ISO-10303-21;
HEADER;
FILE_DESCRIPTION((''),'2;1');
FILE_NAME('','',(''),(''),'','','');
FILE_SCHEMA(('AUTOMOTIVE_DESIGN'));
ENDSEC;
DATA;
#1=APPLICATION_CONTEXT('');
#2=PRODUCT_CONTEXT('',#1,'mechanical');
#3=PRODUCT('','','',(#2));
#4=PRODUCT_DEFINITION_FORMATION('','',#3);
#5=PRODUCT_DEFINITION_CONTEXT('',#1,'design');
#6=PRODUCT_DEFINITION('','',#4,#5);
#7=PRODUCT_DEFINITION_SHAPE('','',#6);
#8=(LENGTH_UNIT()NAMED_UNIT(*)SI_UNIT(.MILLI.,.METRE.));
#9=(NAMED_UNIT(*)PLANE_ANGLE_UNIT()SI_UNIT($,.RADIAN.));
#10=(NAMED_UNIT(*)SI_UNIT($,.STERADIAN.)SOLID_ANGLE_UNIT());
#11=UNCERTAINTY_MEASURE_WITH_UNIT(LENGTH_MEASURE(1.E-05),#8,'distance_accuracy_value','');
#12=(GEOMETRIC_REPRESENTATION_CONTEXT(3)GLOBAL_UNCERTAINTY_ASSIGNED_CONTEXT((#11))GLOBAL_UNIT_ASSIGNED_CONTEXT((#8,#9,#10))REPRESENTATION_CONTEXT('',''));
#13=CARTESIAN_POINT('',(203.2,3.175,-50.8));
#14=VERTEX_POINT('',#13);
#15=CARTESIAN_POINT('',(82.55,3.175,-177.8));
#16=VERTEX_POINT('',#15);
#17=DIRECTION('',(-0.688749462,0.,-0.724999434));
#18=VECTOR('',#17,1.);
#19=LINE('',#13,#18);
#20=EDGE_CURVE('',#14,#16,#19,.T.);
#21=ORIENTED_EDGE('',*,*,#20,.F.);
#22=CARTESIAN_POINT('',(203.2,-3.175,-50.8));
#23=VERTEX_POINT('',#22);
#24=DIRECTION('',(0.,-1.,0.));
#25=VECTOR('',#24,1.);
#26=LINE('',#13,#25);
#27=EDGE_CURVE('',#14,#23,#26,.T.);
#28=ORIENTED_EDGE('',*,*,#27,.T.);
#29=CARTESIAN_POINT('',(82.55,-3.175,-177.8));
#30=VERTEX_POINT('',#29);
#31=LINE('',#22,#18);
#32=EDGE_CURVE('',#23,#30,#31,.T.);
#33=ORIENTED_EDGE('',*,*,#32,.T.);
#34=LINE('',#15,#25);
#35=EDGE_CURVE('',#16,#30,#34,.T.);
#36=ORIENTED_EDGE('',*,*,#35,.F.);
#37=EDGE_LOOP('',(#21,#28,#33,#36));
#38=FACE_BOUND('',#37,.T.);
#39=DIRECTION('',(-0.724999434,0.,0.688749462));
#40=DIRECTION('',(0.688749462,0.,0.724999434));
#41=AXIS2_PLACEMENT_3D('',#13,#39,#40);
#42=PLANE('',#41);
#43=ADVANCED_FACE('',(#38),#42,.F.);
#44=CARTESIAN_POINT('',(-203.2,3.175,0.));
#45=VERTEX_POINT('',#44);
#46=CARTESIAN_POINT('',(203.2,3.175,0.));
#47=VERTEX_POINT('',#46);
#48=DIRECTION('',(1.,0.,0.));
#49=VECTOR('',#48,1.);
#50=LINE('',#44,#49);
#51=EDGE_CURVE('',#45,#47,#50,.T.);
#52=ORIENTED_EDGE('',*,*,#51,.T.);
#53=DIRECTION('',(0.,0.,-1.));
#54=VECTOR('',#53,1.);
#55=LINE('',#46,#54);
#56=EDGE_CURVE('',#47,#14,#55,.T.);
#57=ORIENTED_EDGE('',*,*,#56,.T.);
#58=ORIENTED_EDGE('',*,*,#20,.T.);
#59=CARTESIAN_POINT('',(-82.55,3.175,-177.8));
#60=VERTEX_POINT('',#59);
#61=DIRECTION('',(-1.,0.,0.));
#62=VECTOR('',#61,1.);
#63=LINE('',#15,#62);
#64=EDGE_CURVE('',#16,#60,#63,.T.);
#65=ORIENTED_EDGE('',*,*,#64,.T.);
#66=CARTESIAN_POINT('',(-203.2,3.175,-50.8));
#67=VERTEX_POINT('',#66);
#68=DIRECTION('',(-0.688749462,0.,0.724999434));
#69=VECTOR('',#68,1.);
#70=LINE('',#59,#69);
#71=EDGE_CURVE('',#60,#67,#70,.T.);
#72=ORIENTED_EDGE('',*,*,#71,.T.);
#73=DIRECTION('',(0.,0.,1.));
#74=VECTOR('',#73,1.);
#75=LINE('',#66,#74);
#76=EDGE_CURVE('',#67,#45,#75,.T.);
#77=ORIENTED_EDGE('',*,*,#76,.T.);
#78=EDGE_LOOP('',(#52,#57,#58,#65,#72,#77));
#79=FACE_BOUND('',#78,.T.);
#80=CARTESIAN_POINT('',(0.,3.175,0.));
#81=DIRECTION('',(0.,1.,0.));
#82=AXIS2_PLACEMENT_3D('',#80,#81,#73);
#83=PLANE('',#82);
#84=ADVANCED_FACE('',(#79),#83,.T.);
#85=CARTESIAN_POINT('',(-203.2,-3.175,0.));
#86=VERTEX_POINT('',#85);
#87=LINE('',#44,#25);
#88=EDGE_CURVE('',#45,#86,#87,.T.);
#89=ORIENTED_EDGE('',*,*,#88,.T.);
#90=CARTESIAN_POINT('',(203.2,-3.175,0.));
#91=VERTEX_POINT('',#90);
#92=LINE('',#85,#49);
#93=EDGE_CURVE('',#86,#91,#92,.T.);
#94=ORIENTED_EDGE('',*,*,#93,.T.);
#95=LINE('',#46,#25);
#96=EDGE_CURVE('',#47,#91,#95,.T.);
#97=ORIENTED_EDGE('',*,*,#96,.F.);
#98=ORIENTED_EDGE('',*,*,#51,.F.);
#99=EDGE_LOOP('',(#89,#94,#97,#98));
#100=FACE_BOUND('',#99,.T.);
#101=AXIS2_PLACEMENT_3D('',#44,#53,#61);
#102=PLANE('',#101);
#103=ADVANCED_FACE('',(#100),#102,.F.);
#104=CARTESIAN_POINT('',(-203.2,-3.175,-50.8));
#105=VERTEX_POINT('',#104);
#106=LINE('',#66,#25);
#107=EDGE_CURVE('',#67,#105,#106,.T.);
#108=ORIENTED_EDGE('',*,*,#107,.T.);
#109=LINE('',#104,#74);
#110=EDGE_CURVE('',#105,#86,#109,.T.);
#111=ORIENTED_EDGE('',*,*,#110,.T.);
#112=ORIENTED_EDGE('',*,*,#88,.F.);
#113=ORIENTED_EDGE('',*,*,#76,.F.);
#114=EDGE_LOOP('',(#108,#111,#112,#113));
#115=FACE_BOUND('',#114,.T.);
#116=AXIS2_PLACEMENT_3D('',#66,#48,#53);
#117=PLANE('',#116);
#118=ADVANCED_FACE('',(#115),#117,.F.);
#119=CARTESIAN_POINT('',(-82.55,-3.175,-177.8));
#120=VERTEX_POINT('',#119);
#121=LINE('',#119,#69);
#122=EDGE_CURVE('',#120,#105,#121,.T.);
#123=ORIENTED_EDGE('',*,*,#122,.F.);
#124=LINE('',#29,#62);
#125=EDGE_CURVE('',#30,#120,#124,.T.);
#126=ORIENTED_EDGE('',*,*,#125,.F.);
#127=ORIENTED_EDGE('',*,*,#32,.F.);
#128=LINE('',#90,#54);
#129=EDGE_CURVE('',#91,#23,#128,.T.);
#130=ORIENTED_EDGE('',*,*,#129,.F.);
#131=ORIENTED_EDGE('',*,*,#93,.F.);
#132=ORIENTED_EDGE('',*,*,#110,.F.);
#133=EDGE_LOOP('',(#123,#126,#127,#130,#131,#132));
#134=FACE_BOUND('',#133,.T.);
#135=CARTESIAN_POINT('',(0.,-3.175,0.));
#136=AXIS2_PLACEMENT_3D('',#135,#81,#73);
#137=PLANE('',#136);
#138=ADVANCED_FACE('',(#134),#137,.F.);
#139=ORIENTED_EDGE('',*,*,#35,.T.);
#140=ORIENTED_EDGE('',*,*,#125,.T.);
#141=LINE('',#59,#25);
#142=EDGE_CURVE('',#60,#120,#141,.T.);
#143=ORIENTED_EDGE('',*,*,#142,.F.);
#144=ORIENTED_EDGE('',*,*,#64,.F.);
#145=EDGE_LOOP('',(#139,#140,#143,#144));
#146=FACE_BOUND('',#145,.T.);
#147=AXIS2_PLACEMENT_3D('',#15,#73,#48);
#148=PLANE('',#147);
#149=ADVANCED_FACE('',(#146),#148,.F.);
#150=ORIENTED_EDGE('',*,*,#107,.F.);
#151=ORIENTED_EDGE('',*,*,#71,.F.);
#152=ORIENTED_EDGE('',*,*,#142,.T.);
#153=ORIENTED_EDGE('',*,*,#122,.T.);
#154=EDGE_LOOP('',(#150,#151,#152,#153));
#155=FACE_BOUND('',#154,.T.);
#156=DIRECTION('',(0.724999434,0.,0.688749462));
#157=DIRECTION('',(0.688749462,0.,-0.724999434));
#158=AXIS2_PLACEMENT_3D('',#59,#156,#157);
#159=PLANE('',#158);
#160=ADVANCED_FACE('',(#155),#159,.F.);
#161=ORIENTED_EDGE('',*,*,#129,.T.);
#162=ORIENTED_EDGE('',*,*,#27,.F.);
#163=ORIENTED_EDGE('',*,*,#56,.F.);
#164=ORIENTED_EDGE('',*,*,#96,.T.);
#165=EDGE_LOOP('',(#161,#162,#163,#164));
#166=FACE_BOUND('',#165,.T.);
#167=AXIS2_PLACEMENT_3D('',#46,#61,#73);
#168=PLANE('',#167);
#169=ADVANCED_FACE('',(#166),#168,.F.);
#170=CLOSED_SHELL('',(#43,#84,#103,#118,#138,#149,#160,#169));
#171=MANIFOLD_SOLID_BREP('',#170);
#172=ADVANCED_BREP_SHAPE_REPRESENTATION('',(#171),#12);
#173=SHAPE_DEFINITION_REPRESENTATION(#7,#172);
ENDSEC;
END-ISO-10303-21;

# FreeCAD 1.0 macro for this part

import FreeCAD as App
import Part
import Sketcher
from FreeCAD import Vector
Q = App.Units.Quantity

doc = App.newDocument("Part")
body = doc.addObject("PartDesign::Body", "Body")

# Sketch on XZ plane
sketch1 = body.newObject("Sketcher::SketchObject", "Sketch")
sketch1.AttachmentSupport = (doc.getObject("XZ_Plane"), [""])
sketch1.MapMode = "FlatFace"
sketch1.addGeometry([
    Part.LineSegment(Vector(-203, 0, 0), Vector(203, 0, 0)),  # 0
    Part.LineSegment(Vector(203, 0, 0), Vector(203, -51, 0)),  # 1
    Part.LineSegment(Vector(203, -51, 0), Vector(83, -178, 0)),  # 2
    Part.LineSegment(Vector(83, -178, 0), Vector(-83, -178, 0)),  # 3
    Part.LineSegment(Vector(-83, -178, 0), Vector(-203, -51, 0)),  # 4
    Part.LineSegment(Vector(-203, -51, 0), Vector(-203, 0, 0)),  # 5
], False)
sketch1.addConstraint([
    Sketcher.Constraint("Coincident", 0, 2, 1, 1),
    Sketcher.Constraint("Coincident", 1, 2, 2, 1),
    Sketcher.Constraint("Coincident", 2, 2, 3, 1),
    Sketcher.Constraint("Coincident", 3, 2, 4, 1),
    Sketcher.Constraint("Coincident", 4, 2, 5, 1),
    Sketcher.Constraint("Coincident", 5, 2, 0, 1),
    Sketcher.Constraint("Horizontal", 0),
    Sketcher.Constraint("Vertical", 1),
    Sketcher.Constraint("Horizontal", 3),
    Sketcher.Constraint("Vertical", 5),
    Sketcher.Constraint("Symmetric", 0, 2, 5, 2, -1, 1),
    Sketcher.Constraint("Horizontal", 1, 2, 4, 2),
    Sketcher.Constraint("Equal", 2, 4),
    Sketcher.Constraint("DistanceX", 0, 1, 0, 2, Q("16 in")),
    Sketcher.Constraint("DistanceY", 1, 2, 1, 1, Q("2 in")),
    Sketcher.Constraint("DistanceX", 3, 2, 3, 1, Q("6.5 in")),
    Sketcher.Constraint("DistanceY", 2, 2, -1, 1, Q("7 in")),
])
pad1 = body.newObject("PartDesign::Pad", "Pad")
pad1.Profile = sketch1
pad1.Length = Q("0.25 in")
pad1.Midplane = True

doc.recompute()
